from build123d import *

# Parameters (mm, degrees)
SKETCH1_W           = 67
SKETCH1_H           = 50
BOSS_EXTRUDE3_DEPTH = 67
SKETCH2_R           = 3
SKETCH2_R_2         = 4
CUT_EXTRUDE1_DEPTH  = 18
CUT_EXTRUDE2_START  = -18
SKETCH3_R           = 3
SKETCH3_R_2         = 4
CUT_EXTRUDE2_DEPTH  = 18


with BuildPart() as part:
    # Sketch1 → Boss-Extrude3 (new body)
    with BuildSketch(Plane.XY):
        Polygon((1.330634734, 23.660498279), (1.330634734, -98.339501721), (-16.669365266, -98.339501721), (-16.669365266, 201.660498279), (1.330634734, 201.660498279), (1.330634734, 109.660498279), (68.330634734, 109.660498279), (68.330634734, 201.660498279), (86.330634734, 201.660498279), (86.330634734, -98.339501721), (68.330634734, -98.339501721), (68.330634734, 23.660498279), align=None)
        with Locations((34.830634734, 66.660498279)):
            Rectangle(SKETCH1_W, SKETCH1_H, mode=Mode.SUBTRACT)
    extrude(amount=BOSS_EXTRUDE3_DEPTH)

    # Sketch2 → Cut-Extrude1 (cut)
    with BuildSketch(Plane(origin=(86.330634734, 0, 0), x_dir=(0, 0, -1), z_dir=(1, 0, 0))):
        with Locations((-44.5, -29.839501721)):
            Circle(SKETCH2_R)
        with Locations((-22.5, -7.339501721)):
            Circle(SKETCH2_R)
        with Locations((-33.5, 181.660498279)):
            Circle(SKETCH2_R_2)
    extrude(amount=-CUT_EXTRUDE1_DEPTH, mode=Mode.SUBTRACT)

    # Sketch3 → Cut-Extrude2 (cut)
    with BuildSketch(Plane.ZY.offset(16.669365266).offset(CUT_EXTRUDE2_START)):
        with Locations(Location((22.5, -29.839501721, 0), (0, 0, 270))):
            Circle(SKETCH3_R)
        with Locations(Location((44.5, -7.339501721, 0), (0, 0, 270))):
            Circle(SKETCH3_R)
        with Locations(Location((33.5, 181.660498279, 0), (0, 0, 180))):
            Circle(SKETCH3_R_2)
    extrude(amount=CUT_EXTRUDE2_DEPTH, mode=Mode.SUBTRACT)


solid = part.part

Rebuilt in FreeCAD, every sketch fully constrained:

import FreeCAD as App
import Part
import Sketcher

V = App.Vector

doc = App.newDocument("Part")
body = doc.addObject("PartDesign::Body", "Body")

# Sketch on XY plane
sketch1 = doc.addObject("Sketcher::SketchObject", "Sketch")
body.addObject(sketch1)
sketch1.AttachmentSupport = (doc.XY_Plane, [""])
sketch1.MapMode = "FlatFace"
sketch1.addGeometry(Part.LineSegment(V(1, -98, 0), V(1, 24, 0)), False)
sketch1.addGeometry(Part.LineSegment(V(1, 24, 0), V(68, 24, 0)), False)
sketch1.addGeometry(Part.LineSegment(V(68, 24, 0), V(68, -98, 0)), False)
sketch1.addGeometry(Part.LineSegment(V(68, -98, 0), V(86, -98, 0)), False)
sketch1.addGeometry(Part.LineSegment(V(86, -98, 0), V(86, 202, 0)), False)
sketch1.addGeometry(Part.LineSegment(V(86, 202, 0), V(68, 202, 0)), False)
sketch1.addGeometry(Part.LineSegment(V(68, 202, 0), V(68, 110, 0)), False)
sketch1.addGeometry(Part.LineSegment(V(68, 110, 0), V(1, 110, 0)), False)
sketch1.addGeometry(Part.LineSegment(V(1, 110, 0), V(1, 202, 0)), False)
sketch1.addGeometry(Part.LineSegment(V(1, 202, 0), V(-17, 202, 0)), False)
sketch1.addGeometry(Part.LineSegment(V(-17, 202, 0), V(-17, -98, 0)), False)
sketch1.addGeometry(Part.LineSegment(V(-17, -98, 0), V(1, -98, 0)), False)
sketch1.addGeometry(Part.LineSegment(V(1, 42, 0), V(1, 92, 0)), False)
sketch1.addGeometry(Part.LineSegment(V(1, 92, 0), V(68, 92, 0)), False)
sketch1.addGeometry(Part.LineSegment(V(68, 92, 0), V(68, 42, 0)), False)
sketch1.addGeometry(Part.LineSegment(V(68, 42, 0), V(1, 42, 0)), False)
sketch1.addConstraint(Sketcher.Constraint("Coincident", 0, 2, 1, 1))
sketch1.addConstraint(Sketcher.Constraint("Coincident", 1, 2, 2, 1))
sketch1.addConstraint(Sketcher.Constraint("Coincident", 2, 2, 3, 1))
sketch1.addConstraint(Sketcher.Constraint("Coincident", 3, 2, 4, 1))
sketch1.addConstraint(Sketcher.Constraint("Coincident", 4, 2, 5, 1))
sketch1.addConstraint(Sketcher.Constraint("Coincident", 5, 2, 6, 1))
sketch1.addConstraint(Sketcher.Constraint("Coincident", 6, 2, 7, 1))
sketch1.addConstraint(Sketcher.Constraint("Coincident", 7, 2, 8, 1))
sketch1.addConstraint(Sketcher.Constraint("Coincident", 8, 2, 9, 1))
sketch1.addConstraint(Sketcher.Constraint("Coincident", 9, 2, 10, 1))
sketch1.addConstraint(Sketcher.Constraint("Coincident", 10, 2, 11, 1))
sketch1.addConstraint(Sketcher.Constraint("Coincident", 11, 2, 0, 1))
sketch1.addConstraint(Sketcher.Constraint("Coincident", 12, 2, 13, 1))
sketch1.addConstraint(Sketcher.Constraint("Coincident", 13, 2, 14, 1))
sketch1.addConstraint(Sketcher.Constraint("Coincident", 14, 2, 15, 1))
sketch1.addConstraint(Sketcher.Constraint("Coincident", 15, 2, 12, 1))
sketch1.addConstraint(Sketcher.Constraint("Vertical", 0))
sketch1.addConstraint(Sketcher.Constraint("Horizontal", 1))
sketch1.addConstraint(Sketcher.Constraint("Vertical", 2))
sketch1.addConstraint(Sketcher.Constraint("Horizontal", 3))
sketch1.addConstraint(Sketcher.Constraint("Vertical", 4))
sketch1.addConstraint(Sketcher.Constraint("Horizontal", 5))
sketch1.addConstraint(Sketcher.Constraint("Vertical", 6))
sketch1.addConstraint(Sketcher.Constraint("Horizontal", 7))
sketch1.addConstraint(Sketcher.Constraint("Vertical", 8))
sketch1.addConstraint(Sketcher.Constraint("Horizontal", 9))
sketch1.addConstraint(Sketcher.Constraint("Vertical", 10))
sketch1.addConstraint(Sketcher.Constraint("Horizontal", 11))
sketch1.addConstraint(Sketcher.Constraint("Vertical", 12))
sketch1.addConstraint(Sketcher.Constraint("Horizontal", 13))
sketch1.addConstraint(Sketcher.Constraint("Vertical", 14))
sketch1.addConstraint(Sketcher.Constraint("Horizontal", 15))
sketch1.addConstraint(Sketcher.Constraint("Horizontal", 5, 2, 8, 2))
sketch1.addConstraint(Sketcher.Constraint("Horizontal", 3, 2, 10, 2))
sketch1.addConstraint(Sketcher.Constraint("Vertical", 2, 2, 5, 2))
sketch1.addConstraint(Sketcher.Constraint("Vertical", 0, 2, 7, 2))
sketch1.addConstraint(Sketcher.Constraint("Vertical", 11, 2, 12, 2))
sketch1.addConstraint(Sketcher.Constraint("Vertical", 6, 2, 13, 2))
sketch1.addConstraint(Sketcher.Constraint("Equal", 5, 9))
sketch1.addConstraint(Sketcher.Constraint("DistanceX", 1, 1, 1, 2, 67.0))
sketch1.addConstraint(Sketcher.Constraint("DistanceX", 3, 1, 3, 2, 18.0))
sketch1.addConstraint(Sketcher.Constraint("DistanceY", 0, 1, 0, 2, 122.0))
sketch1.addConstraint(Sketcher.Constraint("DistanceY", 4, 1, 4, 2, 300.0))
sketch1.addConstraint(Sketcher.Constraint("DistanceY", 6, 2, 6, 1, 92.0))
sketch1.addConstraint(Sketcher.Constraint("DistanceY", 12, 1, 12, 2, 50.0))
sketch1.addConstraint(Sketcher.Constraint("DistanceY", 12, 2, 7, 2, 18.0))
sketch1.addConstraint(Sketcher.Constraint("DistanceY", -1, 1, 0, 2, 23.660498))
sketch1.addConstraint(Sketcher.Constraint("DistanceX", -1, 1, 0, 2, 1.330635))
pad1 = doc.addObject("PartDesign::Pad", "Pad")
body.addObject(pad1)
pad1.Profile = sketch1
pad1.Length = 67

# Sketch on YZ plane
sketch2 = doc.addObject("Sketcher::SketchObject", "Sketch001")
body.addObject(sketch2)
sketch2.AttachmentSupport = (doc.YZ_Plane, [""])
sketch2.MapMode = "FlatFace"
sketch2.AttachmentOffset = App.Placement(V(0, 0, 86.330635), App.Rotation())
sketch2.addGeometry(Part.Circle(V(-29.8, 44.5, 0), V(0, 0, 1), 3), False)
sketch2.addGeometry(Part.Circle(V(-7.3, 22.5, 0), V(0, 0, 1), 3), False)
sketch2.addGeometry(Part.Circle(V(181.7, 33.5, 0), V(0, 0, 1), 4), False)
sketch2.addConstraint(Sketcher.Constraint("Equal", 0, 1))
sketch2.addConstraint(Sketcher.Constraint("Diameter", 0, 6.0))
sketch2.addConstraint(Sketcher.Constraint("Diameter", 2, 8.0))
sketch2.addConstraint(Sketcher.Constraint("DistanceY", 1, 3, 0, 3, 22.0))
sketch2.addConstraint(Sketcher.Constraint("DistanceX", 1, 3, 2, 3, 189.0))
sketch2.addConstraint(Sketcher.Constraint("DistanceY", 1, 3, 2, 3, 11.0))
sketch2.addConstraint(Sketcher.Constraint("DistanceY", -1, 1, 0, 3, 44.5))
sketch2.addConstraint(Sketcher.Constraint("DistanceX", 0, 3, 1, 3, 22.5))
sketch2.addConstraint(Sketcher.Constraint("DistanceX", 0, 3, -1, 1, 29.839502))
pocket1 = doc.addObject("PartDesign::Pocket", "Pocket")
body.addObject(pocket1)
pocket1.Profile = sketch2
pocket1.Length = 18

# Sketch on YZ plane
sketch3 = doc.addObject("Sketcher::SketchObject", "Sketch002")
body.addObject(sketch3)
sketch3.AttachmentSupport = (doc.YZ_Plane, [""])
sketch3.MapMode = "FlatFace"
sketch3.AttachmentOffset = App.Placement(V(0, 0, 1.330635), App.Rotation())
sketch3.addGeometry(Part.Circle(V(-29.8, 22.5, 0), V(0, 0, 1), 3), False)
sketch3.addGeometry(Part.Circle(V(-7.3, 44.5, 0), V(0, 0, 1), 3), False)
sketch3.addGeometry(Part.Circle(V(181.7, 33.5, 0), V(0, 0, 1), 4), False)
sketch3.addConstraint(Sketcher.Constraint("Equal", 0, 1))
sketch3.addConstraint(Sketcher.Constraint("Diameter", 0, 6.0))
sketch3.addConstraint(Sketcher.Constraint("Diameter", 2, 8.0))
sketch3.addConstraint(Sketcher.Constraint("DistanceY", 0, 3, 1, 3, 22.0))
sketch3.addConstraint(Sketcher.Constraint("DistanceX", 1, 3, 2, 3, 189.0))
sketch3.addConstraint(Sketcher.Constraint("DistanceY", 2, 3, 1, 3, 11.0))
sketch3.addConstraint(Sketcher.Constraint("DistanceY", -1, 1, 0, 3, 22.5))
sketch3.addConstraint(Sketcher.Constraint("DistanceX", 0, 3, 1, 3, 22.5))
sketch3.addConstraint(Sketcher.Constraint("DistanceX", 0, 3, -1, 1, 29.839502))
pocket2 = doc.addObject("PartDesign::Pocket", "Pocket001")
body.addObject(pocket2)
pocket2.Profile = sketch3
pocket2.Length = 18

doc.recompute()
